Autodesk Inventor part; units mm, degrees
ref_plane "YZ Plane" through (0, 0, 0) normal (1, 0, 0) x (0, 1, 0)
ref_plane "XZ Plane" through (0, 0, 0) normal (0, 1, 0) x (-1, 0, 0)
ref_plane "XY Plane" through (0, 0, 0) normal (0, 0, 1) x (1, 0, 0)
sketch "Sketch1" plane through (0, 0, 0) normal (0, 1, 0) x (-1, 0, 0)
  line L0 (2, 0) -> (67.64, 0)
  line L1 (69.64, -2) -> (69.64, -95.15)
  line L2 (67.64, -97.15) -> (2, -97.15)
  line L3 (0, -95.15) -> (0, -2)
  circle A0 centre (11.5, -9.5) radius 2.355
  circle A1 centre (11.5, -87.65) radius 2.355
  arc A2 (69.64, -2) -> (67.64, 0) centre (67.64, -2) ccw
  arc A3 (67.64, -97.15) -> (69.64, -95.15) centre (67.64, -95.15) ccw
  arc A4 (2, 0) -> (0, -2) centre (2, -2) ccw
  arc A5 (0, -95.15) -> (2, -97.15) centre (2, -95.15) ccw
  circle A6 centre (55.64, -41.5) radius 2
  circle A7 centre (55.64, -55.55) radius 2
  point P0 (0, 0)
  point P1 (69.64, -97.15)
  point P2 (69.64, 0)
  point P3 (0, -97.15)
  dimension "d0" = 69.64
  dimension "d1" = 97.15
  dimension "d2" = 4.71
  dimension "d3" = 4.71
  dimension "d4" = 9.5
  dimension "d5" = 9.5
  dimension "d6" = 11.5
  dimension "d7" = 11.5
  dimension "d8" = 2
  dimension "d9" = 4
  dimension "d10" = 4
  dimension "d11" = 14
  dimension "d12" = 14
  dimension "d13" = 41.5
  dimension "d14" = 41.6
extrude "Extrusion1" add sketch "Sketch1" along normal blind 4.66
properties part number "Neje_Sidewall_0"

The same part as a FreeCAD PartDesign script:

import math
import FreeCAD as App
import Part
import Sketcher
Q = App.Units.Quantity

doc = App.newDocument("Part")
body = doc.addObject("PartDesign::Body", "Body")

sketch1 = doc.addObject("Sketcher::SketchObject", "Sketch")
body.addObject(sketch1)
sketch1.AttachmentSupport = (doc.XZ_Plane, [""])
sketch1.MapMode = "FlatFace"
sketch1.addGeometry([
    Part.LineSegment(App.Vector(-67.6, 0, 0), App.Vector(-2, 0, 0)),
    Part.ArcOfCircle(Part.Circle(App.Vector(-2, -2, 0), App.Vector(0, 0, 1), 2), math.radians(0), math.radians(90)),
    Part.LineSegment(App.Vector(0, -2, 0), App.Vector(0, -95.2, 0)),
    Part.ArcOfCircle(Part.Circle(App.Vector(-2, -95.2, 0), App.Vector(0, 0, 1), 2), math.radians(-90), math.radians(0)),
    Part.LineSegment(App.Vector(-2, -97.2, 0), App.Vector(-67.6, -97.2, 0)),
    Part.ArcOfCircle(Part.Circle(App.Vector(-67.6, -95.2, 0), App.Vector(0, 0, 1), 2), math.radians(180), math.radians(270)),
    Part.LineSegment(App.Vector(-69.6, -95.2, 0), App.Vector(-69.6, -2, 0)),
    Part.ArcOfCircle(Part.Circle(App.Vector(-67.6, -2, 0), App.Vector(0, 0, 1), 2), math.radians(90), math.radians(180)),
    Part.Circle(App.Vector(-11.5, -87.7, 0), App.Vector(0, 0, 1), 2.4),
    Part.Circle(App.Vector(-55.6, -55.5, 0), App.Vector(0, 0, 1), 2),
    Part.Circle(App.Vector(-11.5, -9.5, 0), App.Vector(0, 0, 1), 2.4),
    Part.Circle(App.Vector(-55.6, -41.5, 0), App.Vector(0, 0, 1), 2),
], False)
sketch1.addConstraint([
    Sketcher.Constraint("Tangent", 0, 2, 1, 2),
    Sketcher.Constraint("Tangent", 1, 1, 2, 1),
    Sketcher.Constraint("Tangent", 2, 2, 3, 2),
    Sketcher.Constraint("Tangent", 3, 1, 4, 1),
    Sketcher.Constraint("Tangent", 4, 2, 5, 2),
    Sketcher.Constraint("Tangent", 5, 1, 6, 1),
    Sketcher.Constraint("Tangent", 6, 2, 7, 2),
    Sketcher.Constraint("Tangent", 7, 1, 0, 1),
    Sketcher.Constraint("Horizontal", 0),
    Sketcher.Constraint("Vertical", 2),
    Sketcher.Constraint("Horizontal", 4),
    Sketcher.Constraint("Vertical", 6),
    Sketcher.Constraint("Equal", 1, 3),
    Sketcher.Constraint("Equal", 3, 5),
    Sketcher.Constraint("Equal", 5, 7),
    Sketcher.Constraint("Equal", 7, 9),
    Sketcher.Constraint("Equal", 8, 10),
    Sketcher.Constraint("Equal", 9, 11),
    Sketcher.Constraint("PointOnObject", 0, 2, -1),
    Sketcher.Constraint("PointOnObject", 1, 1, -2),
    Sketcher.Constraint("Vertical", 8, 3, 10, 3),
    Sketcher.Constraint("Vertical", 9, 3, 11, 3),
    Sketcher.Constraint("Diameter", 9, Q("4 mm")),
    Sketcher.Constraint("Diameter", 8, Q("4.71 mm")),
    Sketcher.Constraint("DistanceX", 5, 1, 9, 3, Q("14 mm")),
    Sketcher.Constraint("DistanceX", 8, 3, -1, 1, Q("11.5 mm")),
    Sketcher.Constraint("DistanceY", 10, 3, -1, 1, Q("9.5 mm")),
    Sketcher.Constraint("DistanceY", 11, 3, -1, 1, Q("41.5 mm")),
    Sketcher.Constraint("DistanceY", 3, 1, 8, 3, Q("9.5 mm")),
    Sketcher.Constraint("DistanceY", 3, 1, 9, 3, Q("41.6 mm")),
    Sketcher.Constraint("DistanceY", 3, 1, -1, 1, Q("97.15 mm")),
    Sketcher.Constraint("DistanceX", 5, 1, -1, 1, Q("69.64 mm")),
])
pad1 = doc.addObject("PartDesign::Pad", "Pad")
body.addObject(pad1)
pad1.Profile = sketch1
pad1.Length = 4.66
pad1.Reversed = True

doc.recompute()
